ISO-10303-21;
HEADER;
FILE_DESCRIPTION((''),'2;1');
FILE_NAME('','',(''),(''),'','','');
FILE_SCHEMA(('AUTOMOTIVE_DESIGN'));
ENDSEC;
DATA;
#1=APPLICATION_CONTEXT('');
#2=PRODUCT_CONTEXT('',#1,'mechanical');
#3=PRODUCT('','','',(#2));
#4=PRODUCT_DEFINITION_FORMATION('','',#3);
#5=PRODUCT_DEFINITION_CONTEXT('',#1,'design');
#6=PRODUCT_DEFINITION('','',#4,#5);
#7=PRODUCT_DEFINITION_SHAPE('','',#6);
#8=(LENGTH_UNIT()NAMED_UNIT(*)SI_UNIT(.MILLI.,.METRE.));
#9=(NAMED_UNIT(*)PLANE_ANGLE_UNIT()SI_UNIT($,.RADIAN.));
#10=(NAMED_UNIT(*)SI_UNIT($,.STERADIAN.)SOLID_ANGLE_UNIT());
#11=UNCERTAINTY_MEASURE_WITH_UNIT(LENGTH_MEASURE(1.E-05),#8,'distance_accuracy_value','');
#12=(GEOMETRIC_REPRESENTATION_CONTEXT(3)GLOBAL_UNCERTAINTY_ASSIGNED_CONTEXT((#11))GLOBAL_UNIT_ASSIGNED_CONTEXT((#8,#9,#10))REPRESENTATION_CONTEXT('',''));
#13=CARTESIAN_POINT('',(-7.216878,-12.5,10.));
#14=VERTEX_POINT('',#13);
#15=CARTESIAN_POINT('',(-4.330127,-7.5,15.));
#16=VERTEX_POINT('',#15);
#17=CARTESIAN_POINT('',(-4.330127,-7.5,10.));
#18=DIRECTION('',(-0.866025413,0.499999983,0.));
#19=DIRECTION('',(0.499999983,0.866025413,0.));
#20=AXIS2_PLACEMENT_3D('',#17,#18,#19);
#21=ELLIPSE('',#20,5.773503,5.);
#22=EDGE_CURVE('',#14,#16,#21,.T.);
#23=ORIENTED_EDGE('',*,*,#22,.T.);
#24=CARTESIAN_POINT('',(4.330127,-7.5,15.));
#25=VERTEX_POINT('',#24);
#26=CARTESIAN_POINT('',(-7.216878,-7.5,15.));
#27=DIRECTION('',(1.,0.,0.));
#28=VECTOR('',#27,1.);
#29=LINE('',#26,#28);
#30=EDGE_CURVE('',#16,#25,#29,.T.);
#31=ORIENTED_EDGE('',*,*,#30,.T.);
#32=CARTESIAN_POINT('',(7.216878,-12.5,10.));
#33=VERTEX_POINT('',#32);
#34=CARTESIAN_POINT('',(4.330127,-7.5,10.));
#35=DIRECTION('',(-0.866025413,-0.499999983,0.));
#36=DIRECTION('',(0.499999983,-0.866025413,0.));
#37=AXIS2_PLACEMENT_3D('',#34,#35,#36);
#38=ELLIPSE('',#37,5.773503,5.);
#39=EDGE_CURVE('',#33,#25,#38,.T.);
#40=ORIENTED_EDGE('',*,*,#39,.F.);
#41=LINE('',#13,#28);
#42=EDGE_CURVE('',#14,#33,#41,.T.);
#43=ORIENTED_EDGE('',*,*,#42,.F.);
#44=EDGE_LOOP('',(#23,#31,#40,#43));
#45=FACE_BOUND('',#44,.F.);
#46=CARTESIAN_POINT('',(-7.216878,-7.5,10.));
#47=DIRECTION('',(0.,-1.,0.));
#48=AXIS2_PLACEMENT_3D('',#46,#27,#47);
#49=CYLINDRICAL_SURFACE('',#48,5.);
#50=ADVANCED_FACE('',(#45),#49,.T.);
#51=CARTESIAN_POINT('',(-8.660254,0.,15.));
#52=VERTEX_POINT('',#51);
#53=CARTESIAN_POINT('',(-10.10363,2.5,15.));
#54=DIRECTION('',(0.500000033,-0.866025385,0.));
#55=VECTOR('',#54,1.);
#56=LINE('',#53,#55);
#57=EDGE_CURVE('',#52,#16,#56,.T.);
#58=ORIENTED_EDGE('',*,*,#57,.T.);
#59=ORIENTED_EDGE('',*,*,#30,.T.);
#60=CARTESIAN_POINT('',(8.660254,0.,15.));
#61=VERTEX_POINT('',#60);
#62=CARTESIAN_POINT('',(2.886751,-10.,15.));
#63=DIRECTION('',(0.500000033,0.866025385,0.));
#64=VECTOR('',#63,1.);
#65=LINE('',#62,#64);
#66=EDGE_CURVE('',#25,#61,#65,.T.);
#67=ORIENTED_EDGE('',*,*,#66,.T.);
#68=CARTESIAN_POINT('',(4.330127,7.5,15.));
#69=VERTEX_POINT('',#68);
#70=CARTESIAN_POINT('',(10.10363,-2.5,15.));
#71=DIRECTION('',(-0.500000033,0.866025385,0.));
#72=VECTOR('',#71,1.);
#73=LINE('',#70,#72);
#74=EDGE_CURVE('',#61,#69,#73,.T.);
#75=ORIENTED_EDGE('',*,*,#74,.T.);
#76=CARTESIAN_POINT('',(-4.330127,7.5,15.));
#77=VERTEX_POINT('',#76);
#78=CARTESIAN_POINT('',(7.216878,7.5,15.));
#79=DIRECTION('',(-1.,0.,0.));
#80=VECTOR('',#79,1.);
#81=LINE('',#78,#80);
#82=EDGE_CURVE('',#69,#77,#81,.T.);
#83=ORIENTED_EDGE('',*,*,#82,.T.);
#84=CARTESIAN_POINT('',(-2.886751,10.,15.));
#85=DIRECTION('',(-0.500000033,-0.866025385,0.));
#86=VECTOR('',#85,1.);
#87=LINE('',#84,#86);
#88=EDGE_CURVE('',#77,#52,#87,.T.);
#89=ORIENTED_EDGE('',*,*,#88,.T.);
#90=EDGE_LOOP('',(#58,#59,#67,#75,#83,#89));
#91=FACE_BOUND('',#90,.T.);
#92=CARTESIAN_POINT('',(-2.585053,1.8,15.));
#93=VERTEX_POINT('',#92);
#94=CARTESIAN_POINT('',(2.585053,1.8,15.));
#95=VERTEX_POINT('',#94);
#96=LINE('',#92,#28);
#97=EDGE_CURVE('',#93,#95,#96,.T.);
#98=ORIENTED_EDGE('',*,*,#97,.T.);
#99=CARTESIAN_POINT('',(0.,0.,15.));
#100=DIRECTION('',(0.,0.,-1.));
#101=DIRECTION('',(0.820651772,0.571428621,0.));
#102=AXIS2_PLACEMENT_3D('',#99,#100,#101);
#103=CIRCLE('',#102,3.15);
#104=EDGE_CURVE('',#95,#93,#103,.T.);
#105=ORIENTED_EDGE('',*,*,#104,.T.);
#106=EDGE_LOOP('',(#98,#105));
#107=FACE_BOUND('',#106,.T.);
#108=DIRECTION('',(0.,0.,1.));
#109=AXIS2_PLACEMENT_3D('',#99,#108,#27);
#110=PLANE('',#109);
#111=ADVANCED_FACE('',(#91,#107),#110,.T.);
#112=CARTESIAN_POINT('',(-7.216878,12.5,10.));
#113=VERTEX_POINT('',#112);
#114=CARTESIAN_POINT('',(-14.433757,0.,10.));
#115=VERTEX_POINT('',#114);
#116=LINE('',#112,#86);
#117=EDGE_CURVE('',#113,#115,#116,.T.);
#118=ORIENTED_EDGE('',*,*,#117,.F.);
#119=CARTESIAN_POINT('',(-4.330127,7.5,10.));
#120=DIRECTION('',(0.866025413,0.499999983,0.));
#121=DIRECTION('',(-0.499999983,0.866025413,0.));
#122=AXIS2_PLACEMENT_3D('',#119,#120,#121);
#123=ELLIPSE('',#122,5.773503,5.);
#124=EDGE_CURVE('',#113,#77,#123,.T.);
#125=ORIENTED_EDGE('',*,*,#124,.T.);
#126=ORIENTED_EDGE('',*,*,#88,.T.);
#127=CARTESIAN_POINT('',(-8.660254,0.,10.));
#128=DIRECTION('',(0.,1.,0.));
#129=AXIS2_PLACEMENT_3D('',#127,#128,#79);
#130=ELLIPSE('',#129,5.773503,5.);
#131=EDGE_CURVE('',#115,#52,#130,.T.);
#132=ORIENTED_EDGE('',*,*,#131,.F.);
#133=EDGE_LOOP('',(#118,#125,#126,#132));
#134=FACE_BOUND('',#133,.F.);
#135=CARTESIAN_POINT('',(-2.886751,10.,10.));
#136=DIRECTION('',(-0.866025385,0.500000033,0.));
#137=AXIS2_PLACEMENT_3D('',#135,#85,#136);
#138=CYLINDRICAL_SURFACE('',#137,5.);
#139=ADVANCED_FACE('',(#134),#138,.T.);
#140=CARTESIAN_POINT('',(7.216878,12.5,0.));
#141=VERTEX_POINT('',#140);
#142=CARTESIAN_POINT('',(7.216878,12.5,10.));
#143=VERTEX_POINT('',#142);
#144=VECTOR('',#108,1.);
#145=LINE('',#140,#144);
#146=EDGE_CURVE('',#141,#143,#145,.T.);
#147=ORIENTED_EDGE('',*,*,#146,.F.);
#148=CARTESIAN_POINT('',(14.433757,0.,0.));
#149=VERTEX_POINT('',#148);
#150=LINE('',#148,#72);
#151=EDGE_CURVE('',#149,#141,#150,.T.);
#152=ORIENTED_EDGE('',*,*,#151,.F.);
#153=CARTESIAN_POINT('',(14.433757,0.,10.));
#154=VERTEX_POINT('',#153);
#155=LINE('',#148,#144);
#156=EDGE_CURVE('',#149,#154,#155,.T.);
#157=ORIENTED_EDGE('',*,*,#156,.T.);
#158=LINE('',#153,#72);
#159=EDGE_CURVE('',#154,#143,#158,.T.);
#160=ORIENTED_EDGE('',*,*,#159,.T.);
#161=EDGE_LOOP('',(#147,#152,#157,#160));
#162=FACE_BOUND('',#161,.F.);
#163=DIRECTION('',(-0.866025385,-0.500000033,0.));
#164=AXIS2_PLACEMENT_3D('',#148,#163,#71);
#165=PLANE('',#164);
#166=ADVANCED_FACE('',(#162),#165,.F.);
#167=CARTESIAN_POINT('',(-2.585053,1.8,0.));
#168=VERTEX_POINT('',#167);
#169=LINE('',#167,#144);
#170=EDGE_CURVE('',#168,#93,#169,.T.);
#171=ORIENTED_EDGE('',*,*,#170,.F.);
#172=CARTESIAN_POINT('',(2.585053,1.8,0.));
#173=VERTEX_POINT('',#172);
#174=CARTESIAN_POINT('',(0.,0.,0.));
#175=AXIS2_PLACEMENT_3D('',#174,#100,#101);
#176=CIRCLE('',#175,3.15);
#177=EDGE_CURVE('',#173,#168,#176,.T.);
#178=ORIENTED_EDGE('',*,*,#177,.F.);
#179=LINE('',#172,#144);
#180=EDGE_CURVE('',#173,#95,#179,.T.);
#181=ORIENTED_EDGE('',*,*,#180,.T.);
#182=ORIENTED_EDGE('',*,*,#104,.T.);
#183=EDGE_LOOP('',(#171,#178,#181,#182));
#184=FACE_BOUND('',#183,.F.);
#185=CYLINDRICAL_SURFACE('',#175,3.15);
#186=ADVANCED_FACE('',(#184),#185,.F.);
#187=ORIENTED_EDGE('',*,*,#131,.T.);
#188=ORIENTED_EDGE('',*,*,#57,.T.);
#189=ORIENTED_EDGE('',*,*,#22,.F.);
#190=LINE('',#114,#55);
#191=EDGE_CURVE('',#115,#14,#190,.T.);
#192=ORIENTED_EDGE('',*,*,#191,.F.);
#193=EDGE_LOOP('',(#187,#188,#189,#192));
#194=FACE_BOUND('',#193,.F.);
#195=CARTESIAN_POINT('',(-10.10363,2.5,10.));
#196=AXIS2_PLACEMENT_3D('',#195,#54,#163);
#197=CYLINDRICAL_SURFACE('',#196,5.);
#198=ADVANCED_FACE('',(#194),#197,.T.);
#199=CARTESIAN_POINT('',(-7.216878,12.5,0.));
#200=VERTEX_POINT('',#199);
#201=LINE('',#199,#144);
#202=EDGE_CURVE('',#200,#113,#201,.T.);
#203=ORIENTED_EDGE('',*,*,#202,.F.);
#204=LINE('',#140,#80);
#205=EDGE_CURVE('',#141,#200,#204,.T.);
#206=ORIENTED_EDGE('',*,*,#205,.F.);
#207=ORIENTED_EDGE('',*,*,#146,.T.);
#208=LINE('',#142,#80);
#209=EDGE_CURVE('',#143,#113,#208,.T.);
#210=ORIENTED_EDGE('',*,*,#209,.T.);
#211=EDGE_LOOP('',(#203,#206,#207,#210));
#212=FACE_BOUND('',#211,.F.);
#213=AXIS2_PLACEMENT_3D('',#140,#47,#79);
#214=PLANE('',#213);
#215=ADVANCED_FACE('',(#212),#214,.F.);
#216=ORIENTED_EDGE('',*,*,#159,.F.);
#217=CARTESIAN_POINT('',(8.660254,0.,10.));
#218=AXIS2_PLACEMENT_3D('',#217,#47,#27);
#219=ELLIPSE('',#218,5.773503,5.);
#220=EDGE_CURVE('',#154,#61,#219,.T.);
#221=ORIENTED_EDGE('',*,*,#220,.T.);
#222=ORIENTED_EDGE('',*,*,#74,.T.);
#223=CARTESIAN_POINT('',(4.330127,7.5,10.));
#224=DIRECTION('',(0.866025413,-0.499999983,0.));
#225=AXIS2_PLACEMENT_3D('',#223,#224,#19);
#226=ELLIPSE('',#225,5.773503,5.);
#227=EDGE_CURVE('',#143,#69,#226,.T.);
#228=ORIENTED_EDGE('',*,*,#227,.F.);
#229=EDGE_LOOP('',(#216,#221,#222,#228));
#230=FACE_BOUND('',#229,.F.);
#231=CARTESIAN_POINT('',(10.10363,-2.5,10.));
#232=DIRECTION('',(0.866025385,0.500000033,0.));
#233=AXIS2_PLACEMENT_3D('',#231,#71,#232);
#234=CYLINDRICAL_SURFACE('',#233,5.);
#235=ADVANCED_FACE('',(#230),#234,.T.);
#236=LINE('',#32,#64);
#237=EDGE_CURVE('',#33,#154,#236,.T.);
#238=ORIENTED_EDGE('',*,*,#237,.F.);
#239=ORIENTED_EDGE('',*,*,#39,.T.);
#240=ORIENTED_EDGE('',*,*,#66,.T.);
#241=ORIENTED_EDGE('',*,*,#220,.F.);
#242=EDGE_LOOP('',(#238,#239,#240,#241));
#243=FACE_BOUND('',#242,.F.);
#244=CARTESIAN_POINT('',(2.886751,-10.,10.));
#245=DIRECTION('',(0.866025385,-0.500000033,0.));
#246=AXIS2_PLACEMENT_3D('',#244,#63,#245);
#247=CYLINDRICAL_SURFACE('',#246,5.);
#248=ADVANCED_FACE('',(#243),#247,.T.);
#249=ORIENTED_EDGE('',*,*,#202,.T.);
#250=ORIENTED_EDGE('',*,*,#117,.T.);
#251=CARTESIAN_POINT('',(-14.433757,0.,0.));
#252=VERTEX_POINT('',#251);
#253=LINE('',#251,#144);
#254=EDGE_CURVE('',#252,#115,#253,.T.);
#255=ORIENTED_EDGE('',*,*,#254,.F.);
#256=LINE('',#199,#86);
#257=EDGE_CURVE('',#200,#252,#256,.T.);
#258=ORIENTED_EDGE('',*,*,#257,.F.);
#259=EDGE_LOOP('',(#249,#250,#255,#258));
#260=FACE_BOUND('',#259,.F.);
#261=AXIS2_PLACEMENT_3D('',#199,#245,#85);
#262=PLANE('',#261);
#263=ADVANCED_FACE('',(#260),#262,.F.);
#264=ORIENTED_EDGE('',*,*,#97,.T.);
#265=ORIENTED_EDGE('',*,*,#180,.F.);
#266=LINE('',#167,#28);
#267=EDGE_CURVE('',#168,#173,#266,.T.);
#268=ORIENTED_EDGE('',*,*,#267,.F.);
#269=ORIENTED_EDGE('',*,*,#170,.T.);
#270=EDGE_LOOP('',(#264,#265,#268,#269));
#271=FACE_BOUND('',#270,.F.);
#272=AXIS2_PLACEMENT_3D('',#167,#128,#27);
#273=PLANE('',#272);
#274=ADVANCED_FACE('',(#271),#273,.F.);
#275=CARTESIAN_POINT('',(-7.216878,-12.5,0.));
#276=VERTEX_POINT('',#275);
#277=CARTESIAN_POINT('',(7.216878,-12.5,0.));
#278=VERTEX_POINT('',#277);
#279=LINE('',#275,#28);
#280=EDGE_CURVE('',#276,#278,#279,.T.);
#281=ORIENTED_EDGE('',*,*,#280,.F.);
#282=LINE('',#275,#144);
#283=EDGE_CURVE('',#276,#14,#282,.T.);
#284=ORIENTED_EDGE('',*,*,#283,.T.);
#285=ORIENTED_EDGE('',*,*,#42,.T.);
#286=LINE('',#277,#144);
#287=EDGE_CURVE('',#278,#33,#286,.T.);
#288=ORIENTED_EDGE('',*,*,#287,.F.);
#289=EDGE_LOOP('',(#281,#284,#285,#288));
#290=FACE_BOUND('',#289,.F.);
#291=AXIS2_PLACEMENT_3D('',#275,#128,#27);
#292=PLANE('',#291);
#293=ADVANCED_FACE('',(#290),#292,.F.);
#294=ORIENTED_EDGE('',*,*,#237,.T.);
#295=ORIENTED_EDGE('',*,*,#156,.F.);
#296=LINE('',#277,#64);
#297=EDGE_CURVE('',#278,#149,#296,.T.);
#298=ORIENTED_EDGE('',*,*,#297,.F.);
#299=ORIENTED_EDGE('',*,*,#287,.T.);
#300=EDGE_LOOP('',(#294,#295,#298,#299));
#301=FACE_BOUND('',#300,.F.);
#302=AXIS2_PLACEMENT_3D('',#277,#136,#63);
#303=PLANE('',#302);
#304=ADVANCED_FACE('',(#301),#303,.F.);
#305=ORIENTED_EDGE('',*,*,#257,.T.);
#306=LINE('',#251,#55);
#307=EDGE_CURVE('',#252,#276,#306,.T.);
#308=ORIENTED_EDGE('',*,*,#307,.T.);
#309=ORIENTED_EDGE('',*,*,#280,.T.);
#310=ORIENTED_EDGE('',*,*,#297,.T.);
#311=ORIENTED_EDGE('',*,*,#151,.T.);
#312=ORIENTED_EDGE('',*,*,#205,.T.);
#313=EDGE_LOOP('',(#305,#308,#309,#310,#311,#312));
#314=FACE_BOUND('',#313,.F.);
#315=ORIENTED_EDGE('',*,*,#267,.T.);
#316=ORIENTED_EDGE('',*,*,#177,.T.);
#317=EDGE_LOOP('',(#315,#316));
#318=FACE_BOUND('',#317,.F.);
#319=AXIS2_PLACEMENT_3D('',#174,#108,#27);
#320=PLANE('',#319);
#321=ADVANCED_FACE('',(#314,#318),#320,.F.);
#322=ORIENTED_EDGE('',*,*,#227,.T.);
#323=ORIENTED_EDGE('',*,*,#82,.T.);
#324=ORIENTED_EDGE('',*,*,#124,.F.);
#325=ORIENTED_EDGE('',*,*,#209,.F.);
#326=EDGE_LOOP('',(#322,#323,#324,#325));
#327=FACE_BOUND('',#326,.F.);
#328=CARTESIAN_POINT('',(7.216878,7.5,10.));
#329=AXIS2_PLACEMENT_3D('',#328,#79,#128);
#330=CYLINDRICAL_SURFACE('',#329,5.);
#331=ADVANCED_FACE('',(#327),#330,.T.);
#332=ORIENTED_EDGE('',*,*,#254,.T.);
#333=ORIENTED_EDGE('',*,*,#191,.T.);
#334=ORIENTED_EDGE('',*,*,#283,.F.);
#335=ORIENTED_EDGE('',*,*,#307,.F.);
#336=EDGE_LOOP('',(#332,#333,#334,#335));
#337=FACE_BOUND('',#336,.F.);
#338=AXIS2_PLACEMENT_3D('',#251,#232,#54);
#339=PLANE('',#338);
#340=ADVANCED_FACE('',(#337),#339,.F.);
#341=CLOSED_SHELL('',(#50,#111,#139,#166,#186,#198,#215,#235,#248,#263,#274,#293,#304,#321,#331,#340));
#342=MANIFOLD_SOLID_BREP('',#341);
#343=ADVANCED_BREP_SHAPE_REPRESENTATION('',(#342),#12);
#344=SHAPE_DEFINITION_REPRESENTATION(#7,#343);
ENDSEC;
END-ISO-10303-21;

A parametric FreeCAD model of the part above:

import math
import FreeCAD as App
import Part
import Sketcher
Q = App.Units.Quantity


def edges_at(feature, points):
    """Names of the edges that pass closest to the given points."""
    edges = feature.Shape.Edges
    near = lambda p: min(range(len(edges)), key=lambda i: edges[i].distToShape(Part.Vertex(*p))[0])
    return sorted({f"Edge{near(p) + 1}" for p in points})

doc = App.newDocument("Part")
body = doc.addObject("PartDesign::Body", "Body")

sketch1 = body.newObject("Sketcher::SketchObject", "Sketch")
sketch1.AttachmentSupport = (doc.getObject("XY_Plane"), [""])
sketch1.MapMode = "FlatFace"
sketch1.addGeometry([
    Part.LineSegment(App.Vector(14.4, 0, 0), App.Vector(7.2, 12.5, 0)),
    Part.LineSegment(App.Vector(7.2, 12.5, 0), App.Vector(-7.2, 12.5, 0)),
    Part.LineSegment(App.Vector(-7.2, 12.5, 0), App.Vector(-14.4, 0, 0)),
    Part.LineSegment(App.Vector(-14.4, 0, 0), App.Vector(-7.2, -12.5, 0)),
    Part.LineSegment(App.Vector(-7.2, -12.5, 0), App.Vector(7.2, -12.5, 0)),
    Part.LineSegment(App.Vector(7.2, -12.5, 0), App.Vector(14.4, 0, 0)),
    Part.LineSegment(App.Vector(-2.6, 1.8, 0), App.Vector(2.6, 1.8, 0)),
    Part.ArcOfCircle(Part.Circle(App.Vector(0, 0, 0), App.Vector(0, 0, 1), 3.1), math.radians(145), math.radians(395)),
], False)
sketch1.addConstraint([
    Sketcher.Constraint("Coincident", 0, 2, 1, 1),
    Sketcher.Constraint("Coincident", 1, 2, 2, 1),
    Sketcher.Constraint("Coincident", 2, 2, 3, 1),
    Sketcher.Constraint("Coincident", 3, 2, 4, 1),
    Sketcher.Constraint("Coincident", 4, 2, 5, 1),
    Sketcher.Constraint("Coincident", 5, 2, 0, 1),
    Sketcher.Constraint("Coincident", 6, 1, 7, 1),
    Sketcher.Constraint("Coincident", 7, 2, 6, 2),
    Sketcher.Constraint("Horizontal", 1),
    Sketcher.Constraint("Horizontal", 4),
    Sketcher.Constraint("Horizontal", 6),
    Sketcher.Constraint("Coincident", 7, 3, -1, 1),
    Sketcher.Constraint("Symmetric", 0, 2, 3, 2, -1, 1),
    Sketcher.Constraint("Symmetric", 2, 2, 5, 2, -1, 1),
    Sketcher.Constraint("PointOnObject", 2, 2, -1),
    Sketcher.Constraint("Parallel", 2, 5),
    Sketcher.Constraint("Vertical", 1, 2, 3, 2),
    Sketcher.Constraint("Angle", 0, Q("120.000002 deg")),
    Sketcher.Constraint("Radius", 7, Q("3.15 mm")),
    Sketcher.Constraint("DistanceY", 3, 2, 1, 2, Q("25 mm")),
    Sketcher.Constraint("DistanceY", -1, 1, 6, 1, Q("1.8 mm")),
    Sketcher.Constraint("DistanceX", 1, 2, 1, 1, Q("14.433756 mm")),
])
pad1 = body.newObject("PartDesign::Pad", "Pad")
pad1.Profile = sketch1
pad1.Length = 15
doc.recompute()

fillet = body.newObject("PartDesign::Fillet", "Fillet")
fillet.Base = (pad1, edges_at(pad1, [
    (0, -12.5, 15),
    (10.825, -6.25, 15),
    (10.825, 6.25, 15),
    (0, 12.5, 15),
    (-10.825, 6.25, 15),
    (-10.825, -6.25, 15),
]))
fillet.Radius = 5

doc.recompute()
